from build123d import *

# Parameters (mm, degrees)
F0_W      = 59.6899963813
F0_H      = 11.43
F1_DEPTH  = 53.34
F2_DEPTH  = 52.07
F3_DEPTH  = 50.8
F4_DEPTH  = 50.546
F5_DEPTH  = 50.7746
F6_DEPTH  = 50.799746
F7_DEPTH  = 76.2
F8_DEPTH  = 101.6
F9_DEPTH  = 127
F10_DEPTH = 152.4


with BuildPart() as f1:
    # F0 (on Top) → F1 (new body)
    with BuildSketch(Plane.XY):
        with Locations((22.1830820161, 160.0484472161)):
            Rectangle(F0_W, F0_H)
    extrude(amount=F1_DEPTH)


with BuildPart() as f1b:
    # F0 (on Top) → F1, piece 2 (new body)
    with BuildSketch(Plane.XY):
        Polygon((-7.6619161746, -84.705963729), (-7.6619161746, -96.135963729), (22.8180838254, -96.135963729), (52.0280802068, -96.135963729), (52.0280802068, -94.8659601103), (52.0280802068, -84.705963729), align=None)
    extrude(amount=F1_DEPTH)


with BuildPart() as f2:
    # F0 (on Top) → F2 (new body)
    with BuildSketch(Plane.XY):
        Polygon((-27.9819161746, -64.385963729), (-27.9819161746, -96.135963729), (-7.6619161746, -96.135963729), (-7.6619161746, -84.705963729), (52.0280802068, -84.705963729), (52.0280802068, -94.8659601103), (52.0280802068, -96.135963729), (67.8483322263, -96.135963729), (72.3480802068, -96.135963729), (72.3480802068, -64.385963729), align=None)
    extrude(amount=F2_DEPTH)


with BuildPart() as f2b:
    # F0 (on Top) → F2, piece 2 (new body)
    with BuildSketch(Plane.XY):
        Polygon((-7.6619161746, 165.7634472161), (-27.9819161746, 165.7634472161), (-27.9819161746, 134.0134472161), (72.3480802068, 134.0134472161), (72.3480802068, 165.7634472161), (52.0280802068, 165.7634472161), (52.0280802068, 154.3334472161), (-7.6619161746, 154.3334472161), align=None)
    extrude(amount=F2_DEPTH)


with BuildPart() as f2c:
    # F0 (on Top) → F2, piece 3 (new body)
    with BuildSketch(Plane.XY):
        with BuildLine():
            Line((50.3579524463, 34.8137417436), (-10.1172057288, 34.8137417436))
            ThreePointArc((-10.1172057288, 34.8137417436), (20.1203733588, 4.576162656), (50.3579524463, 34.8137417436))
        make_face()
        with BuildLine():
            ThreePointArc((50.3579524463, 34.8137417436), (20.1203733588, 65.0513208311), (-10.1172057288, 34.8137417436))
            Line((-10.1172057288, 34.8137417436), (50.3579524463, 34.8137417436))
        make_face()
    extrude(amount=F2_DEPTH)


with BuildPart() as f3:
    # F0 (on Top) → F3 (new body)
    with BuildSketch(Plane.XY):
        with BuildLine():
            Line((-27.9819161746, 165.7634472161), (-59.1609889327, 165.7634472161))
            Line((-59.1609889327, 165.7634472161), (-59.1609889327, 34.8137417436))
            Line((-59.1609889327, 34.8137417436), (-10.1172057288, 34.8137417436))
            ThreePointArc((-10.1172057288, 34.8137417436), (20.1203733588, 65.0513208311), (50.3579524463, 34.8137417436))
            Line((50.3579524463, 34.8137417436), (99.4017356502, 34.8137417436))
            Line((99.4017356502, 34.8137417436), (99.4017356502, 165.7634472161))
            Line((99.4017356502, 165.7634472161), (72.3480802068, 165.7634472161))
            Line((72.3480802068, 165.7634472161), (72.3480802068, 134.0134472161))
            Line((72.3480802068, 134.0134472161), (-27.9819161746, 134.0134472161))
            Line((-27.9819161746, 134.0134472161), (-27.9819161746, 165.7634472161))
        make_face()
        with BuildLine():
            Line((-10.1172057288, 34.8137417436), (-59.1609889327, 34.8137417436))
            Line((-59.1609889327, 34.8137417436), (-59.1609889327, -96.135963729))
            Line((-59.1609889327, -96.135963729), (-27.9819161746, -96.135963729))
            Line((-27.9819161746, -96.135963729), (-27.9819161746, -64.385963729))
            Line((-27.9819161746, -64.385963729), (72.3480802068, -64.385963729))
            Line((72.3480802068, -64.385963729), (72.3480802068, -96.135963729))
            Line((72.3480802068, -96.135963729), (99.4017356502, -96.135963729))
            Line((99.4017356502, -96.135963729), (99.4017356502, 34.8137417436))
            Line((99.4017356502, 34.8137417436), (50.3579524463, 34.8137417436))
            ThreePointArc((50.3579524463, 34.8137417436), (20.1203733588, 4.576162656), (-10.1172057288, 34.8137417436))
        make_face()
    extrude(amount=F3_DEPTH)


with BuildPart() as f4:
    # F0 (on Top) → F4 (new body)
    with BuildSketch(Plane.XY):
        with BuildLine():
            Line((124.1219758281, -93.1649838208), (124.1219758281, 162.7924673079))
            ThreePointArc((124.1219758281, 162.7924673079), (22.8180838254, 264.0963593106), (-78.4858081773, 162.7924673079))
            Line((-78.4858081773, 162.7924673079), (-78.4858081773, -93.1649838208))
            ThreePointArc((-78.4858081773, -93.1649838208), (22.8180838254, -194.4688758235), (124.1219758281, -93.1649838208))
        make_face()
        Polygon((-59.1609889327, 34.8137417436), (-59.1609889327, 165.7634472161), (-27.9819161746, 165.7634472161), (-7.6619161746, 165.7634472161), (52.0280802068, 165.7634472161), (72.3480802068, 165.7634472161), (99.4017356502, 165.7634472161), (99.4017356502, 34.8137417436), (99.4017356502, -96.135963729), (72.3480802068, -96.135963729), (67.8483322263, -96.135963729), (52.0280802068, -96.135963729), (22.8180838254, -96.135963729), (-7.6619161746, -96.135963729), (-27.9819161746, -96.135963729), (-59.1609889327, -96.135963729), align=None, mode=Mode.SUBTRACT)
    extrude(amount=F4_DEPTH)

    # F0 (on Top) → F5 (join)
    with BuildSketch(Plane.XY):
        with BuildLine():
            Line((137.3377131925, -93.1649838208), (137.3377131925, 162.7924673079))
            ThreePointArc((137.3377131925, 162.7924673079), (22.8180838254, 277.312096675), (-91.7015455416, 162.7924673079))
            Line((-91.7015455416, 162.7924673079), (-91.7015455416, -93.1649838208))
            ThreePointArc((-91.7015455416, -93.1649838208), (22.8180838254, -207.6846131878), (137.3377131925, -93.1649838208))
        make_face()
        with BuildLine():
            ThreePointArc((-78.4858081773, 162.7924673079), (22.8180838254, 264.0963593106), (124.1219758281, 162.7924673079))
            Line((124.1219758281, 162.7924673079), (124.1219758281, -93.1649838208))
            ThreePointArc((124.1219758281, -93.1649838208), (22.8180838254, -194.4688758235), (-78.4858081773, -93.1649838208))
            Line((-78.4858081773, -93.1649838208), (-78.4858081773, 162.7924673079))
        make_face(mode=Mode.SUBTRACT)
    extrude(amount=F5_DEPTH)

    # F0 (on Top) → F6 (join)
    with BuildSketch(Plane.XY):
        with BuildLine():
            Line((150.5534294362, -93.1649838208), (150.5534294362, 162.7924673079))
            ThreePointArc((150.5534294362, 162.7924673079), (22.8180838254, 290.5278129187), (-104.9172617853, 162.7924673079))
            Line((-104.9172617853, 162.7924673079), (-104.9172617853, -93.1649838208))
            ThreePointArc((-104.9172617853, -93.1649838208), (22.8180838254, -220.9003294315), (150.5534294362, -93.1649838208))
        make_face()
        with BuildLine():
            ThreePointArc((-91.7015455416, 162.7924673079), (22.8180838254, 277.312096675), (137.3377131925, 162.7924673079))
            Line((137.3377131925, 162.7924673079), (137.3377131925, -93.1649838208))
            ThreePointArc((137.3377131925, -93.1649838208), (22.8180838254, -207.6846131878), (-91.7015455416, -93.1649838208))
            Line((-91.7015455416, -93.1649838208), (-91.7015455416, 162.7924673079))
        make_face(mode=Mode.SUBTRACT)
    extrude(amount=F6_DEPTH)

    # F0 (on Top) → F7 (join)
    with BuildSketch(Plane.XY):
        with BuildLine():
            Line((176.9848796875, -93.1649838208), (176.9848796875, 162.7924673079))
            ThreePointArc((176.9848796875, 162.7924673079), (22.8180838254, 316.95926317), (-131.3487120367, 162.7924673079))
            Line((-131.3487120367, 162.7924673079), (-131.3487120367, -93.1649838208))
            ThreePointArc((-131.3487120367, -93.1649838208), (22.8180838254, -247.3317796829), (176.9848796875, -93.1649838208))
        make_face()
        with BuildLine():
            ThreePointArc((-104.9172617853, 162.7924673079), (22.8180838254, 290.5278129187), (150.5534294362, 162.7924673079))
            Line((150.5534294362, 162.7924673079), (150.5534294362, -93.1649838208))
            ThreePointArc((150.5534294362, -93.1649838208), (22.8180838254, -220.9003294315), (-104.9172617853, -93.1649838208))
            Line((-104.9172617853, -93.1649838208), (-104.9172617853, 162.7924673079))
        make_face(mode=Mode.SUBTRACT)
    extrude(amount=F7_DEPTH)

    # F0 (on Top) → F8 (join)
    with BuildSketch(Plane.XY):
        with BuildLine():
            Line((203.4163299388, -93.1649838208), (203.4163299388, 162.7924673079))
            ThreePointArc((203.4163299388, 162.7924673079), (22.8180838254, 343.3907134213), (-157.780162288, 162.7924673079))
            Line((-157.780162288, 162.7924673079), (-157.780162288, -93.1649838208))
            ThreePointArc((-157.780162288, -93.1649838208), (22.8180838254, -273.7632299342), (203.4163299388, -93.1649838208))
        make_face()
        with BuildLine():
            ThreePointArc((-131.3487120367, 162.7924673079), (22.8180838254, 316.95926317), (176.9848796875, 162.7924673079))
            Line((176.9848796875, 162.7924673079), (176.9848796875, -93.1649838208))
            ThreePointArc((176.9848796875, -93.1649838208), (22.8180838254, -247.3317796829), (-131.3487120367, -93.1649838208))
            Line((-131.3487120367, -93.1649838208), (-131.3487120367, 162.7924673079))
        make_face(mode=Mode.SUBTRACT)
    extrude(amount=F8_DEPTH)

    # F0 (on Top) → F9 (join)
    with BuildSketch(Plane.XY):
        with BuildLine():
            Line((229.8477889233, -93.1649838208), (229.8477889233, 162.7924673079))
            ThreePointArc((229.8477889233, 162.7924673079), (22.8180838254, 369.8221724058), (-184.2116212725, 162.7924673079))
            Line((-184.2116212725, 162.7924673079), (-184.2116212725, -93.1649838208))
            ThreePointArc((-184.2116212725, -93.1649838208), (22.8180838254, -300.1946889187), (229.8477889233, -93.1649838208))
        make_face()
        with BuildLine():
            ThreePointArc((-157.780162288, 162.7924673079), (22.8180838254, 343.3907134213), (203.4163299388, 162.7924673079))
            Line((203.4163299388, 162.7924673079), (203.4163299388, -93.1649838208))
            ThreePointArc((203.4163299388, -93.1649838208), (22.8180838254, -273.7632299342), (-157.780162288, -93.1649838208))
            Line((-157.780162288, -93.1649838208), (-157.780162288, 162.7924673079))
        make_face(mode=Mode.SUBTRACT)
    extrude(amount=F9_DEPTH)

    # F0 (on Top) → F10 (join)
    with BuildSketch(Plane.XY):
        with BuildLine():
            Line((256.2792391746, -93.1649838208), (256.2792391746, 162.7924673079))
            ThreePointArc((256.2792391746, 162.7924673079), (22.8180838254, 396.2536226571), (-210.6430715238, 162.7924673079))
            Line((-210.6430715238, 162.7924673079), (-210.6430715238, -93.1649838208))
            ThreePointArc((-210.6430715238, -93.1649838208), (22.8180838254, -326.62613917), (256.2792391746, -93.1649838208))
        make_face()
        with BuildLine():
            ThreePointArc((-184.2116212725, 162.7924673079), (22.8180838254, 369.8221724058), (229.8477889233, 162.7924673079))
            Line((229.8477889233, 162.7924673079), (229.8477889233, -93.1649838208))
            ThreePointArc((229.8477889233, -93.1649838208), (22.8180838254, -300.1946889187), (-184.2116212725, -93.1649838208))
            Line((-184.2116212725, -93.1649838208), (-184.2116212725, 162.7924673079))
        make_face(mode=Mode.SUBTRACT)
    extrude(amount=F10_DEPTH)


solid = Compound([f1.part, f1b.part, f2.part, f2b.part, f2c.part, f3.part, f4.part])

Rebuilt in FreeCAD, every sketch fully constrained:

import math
import FreeCAD as App
import Part
import Sketcher
Q = App.Units.Quantity


def add_polygon(sketch, points):
    """Adds a closed chain of lines whose ends are joined by coincident constraints."""
    first, n = sketch.GeometryCount, len(points)
    for a, b in zip(points, points[1:] + points[:1]):
        sketch.addGeometry(Part.LineSegment(App.Vector(*a, 0), App.Vector(*b, 0)), False)
    for i in range(n):
        sketch.addConstraint(Sketcher.Constraint("Coincident", first + i, 2, first + (i + 1) % n, 1))

doc = App.newDocument("Part")
body = doc.addObject("PartDesign::Body", "Body")

# Sketch on XY plane
sketch1 = body.newObject("Sketcher::SketchObject", "Sketch")
sketch1.AttachmentSupport = (doc.getObject("XY_Plane"), [""])
sketch1.MapMode = "FlatFace"
add_polygon(sketch1, [(-8, 166), (-8, 154), (52, 154), (52, 166)])  # lines 0-3
sketch1.addConstraint([
    Sketcher.Constraint("Vertical", 0),
    Sketcher.Constraint("Horizontal", 1),
    Sketcher.Constraint("Vertical", 2),
    Sketcher.Constraint("Horizontal", 3),
    Sketcher.Constraint("DistanceX", 1, 1, 1, 2, Q("2.3499999 in")),
    Sketcher.Constraint("DistanceY", 0, 2, 0, 1, Q("0.45 in")),
    Sketcher.Constraint("DistanceX", -1, 1, 1, 2, Q("52.02808 mm")),
    Sketcher.Constraint("DistanceY", -1, 1, 0, 2, Q("154.333447 mm")),
])
pad1 = body.newObject("PartDesign::Pad", "Pad")
pad1.Profile = sketch1
pad1.Length = Q("2.1 in")
body2 = doc.addObject("PartDesign::Body", "Body001")

# Sketch on XY plane
sketch2 = body2.newObject("Sketcher::SketchObject", "Sketch001")
sketch2.AttachmentSupport = (doc.getObject("XY_Plane001"), [""])
sketch2.MapMode = "FlatFace"
add_polygon(sketch2, [(-8, -85), (-8, -96), (52, -96), (52, -85)])  # lines 0-3
sketch2.addConstraint([
    Sketcher.Constraint("Vertical", 0),
    Sketcher.Constraint("Horizontal", 1),
    Sketcher.Constraint("Vertical", 2),
    Sketcher.Constraint("Horizontal", 3),
    Sketcher.Constraint("DistanceX", 1, 1, 1, 2, Q("2.3499999 in")),
    Sketcher.Constraint("DistanceY", 0, 2, 0, 1, Q("0.45 in")),
    Sketcher.Constraint("DistanceX", -1, 1, 1, 2, Q("52.02808 mm")),
    Sketcher.Constraint("DistanceY", 0, 2, -1, 1, Q("96.135964 mm")),
])
pad2 = body2.newObject("PartDesign::Pad", "Pad001")
pad2.Profile = sketch2
pad2.Length = Q("2.1 in")
body3 = doc.addObject("PartDesign::Body", "Body002")

# Sketch on XY plane
sketch3 = body3.newObject("Sketcher::SketchObject", "Sketch002")
sketch3.AttachmentSupport = (doc.getObject("XY_Plane002"), [""])
sketch3.MapMode = "FlatFace"
add_polygon(sketch3, [(-28, -64), (-28, -96), (-8, -96), (-8, -85), (52, -85), (52, -96), (72, -96), (72, -64)])  # lines 0-7
sketch3.addConstraint([
    Sketcher.Constraint("Vertical", 0),
    Sketcher.Constraint("Horizontal", 1),
    Sketcher.Constraint("Vertical", 2),
    Sketcher.Constraint("Horizontal", 3),
    Sketcher.Constraint("Vertical", 4),
    Sketcher.Constraint("Horizontal", 5),
    Sketcher.Constraint("Vertical", 6),
    Sketcher.Constraint("Horizontal", 7),
    Sketcher.Constraint("Horizontal", 1, 2, 4, 2),
    Sketcher.Constraint("Equal", 1, 5),
    Sketcher.Constraint("DistanceX", 1, 1, 1, 2, Q("0.8 in")),
    Sketcher.Constraint("DistanceX", 3, 1, 3, 2, Q("2.3499999 in")),
    Sketcher.Constraint("DistanceY", 0, 2, 0, 1, Q("1.25 in")),
    Sketcher.Constraint("DistanceY", 2, 1, 2, 2, Q("0.45 in")),
    Sketcher.Constraint("DistanceX", -1, 1, 3, 2, Q("52.02808 mm")),
    Sketcher.Constraint("DistanceY", 0, 2, -1, 1, Q("96.135964 mm")),
])
pad3 = body3.newObject("PartDesign::Pad", "Pad002")
pad3.Profile = sketch3
pad3.Length = Q("2.05 in")
body4 = doc.addObject("PartDesign::Body", "Body003")

# Sketch on XY plane
sketch4 = body4.newObject("Sketcher::SketchObject", "Sketch003")
sketch4.AttachmentSupport = (doc.getObject("XY_Plane003"), [""])
sketch4.MapMode = "FlatFace"
add_polygon(sketch4, [(-8, 166), (-28, 166), (-28, 134), (72, 134), (72, 166), (52, 166), (52, 154), (-8, 154)])  # lines 0-7
sketch4.addConstraint([
    Sketcher.Constraint("Horizontal", 0),
    Sketcher.Constraint("Vertical", 1),
    Sketcher.Constraint("Horizontal", 2),
    Sketcher.Constraint("Vertical", 3),
    Sketcher.Constraint("Horizontal", 4),
    Sketcher.Constraint("Vertical", 5),
    Sketcher.Constraint("Horizontal", 6),
    Sketcher.Constraint("Vertical", 7),
    Sketcher.Constraint("Horizontal", 0, 2, 3, 2),
    Sketcher.Constraint("Equal", 0, 4),
    Sketcher.Constraint("DistanceX", 0, 2, 0, 1, Q("0.8 in")),
    Sketcher.Constraint("DistanceX", 2, 1, 2, 2, Q("3.9499999 in")),
    Sketcher.Constraint("DistanceY", 1, 2, 1, 1, Q("1.25 in")),
    Sketcher.Constraint("DistanceY", 5, 2, 5, 1, Q("0.45 in")),
    Sketcher.Constraint("DistanceX", -1, 1, 2, 2, Q("72.34808 mm")),
    Sketcher.Constraint("DistanceY", -1, 1, 0, 2, Q("165.763447 mm")),
])
pad4 = body4.newObject("PartDesign::Pad", "Pad003")
pad4.Profile = sketch4
pad4.Length = Q("2.05 in")
body5 = doc.addObject("PartDesign::Body", "Body004")

# Sketch on XY plane
sketch5 = body5.newObject("Sketcher::SketchObject", "Sketch004")
sketch5.AttachmentSupport = (doc.getObject("XY_Plane004"), [""])
sketch5.MapMode = "FlatFace"
sketch5.addGeometry(Part.Circle(App.Vector(20, 35, 0), App.Vector(0, 0, 1), 30), False)
sketch5.addConstraint([
    Sketcher.Constraint("Diameter", 0, Q("60.475158 mm")),
    Sketcher.Constraint("DistanceY", -1, 1, 0, 3, Q("34.813742 mm")),
    Sketcher.Constraint("DistanceX", -1, 1, 0, 3, Q("20.120373 mm")),
])
pad5 = body5.newObject("PartDesign::Pad", "Pad004")
pad5.Profile = sketch5
pad5.Length = Q("2.05 in")
body6 = doc.addObject("PartDesign::Body", "Body005")

# Sketch on XY plane
sketch6 = body6.newObject("Sketcher::SketchObject", "Sketch005")
sketch6.AttachmentSupport = (doc.getObject("XY_Plane005"), [""])
sketch6.MapMode = "FlatFace"
add_polygon(sketch6, [(-28, 166), (-59, 166), (-59, -96), (-28, -96), (-28, -64), (72, -64), (72, -96), (99, -96), (99, 166), (72, 166), (72, 134), (-28, 134)])  # lines 0-11
sketch6.addGeometry(Part.Circle(App.Vector(20, 35, 0), App.Vector(0, 0, 1), 30), False)  # 12
sketch6.addConstraint([
    Sketcher.Constraint("Horizontal", 0),
    Sketcher.Constraint("Vertical", 1),
    Sketcher.Constraint("Horizontal", 2),
    Sketcher.Constraint("Vertical", 3),
    Sketcher.Constraint("Horizontal", 4),
    Sketcher.Constraint("Vertical", 5),
    Sketcher.Constraint("Horizontal", 6),
    Sketcher.Constraint("Vertical", 7),
    Sketcher.Constraint("Horizontal", 8),
    Sketcher.Constraint("Vertical", 9),
    Sketcher.Constraint("Horizontal", 10),
    Sketcher.Constraint("Vertical", 11),
    Sketcher.Constraint("Horizontal", 2, 2, 5, 2),
    Sketcher.Constraint("Horizontal", 0, 2, 7, 2),
    Sketcher.Constraint("Vertical", 5, 2, 8, 2),
    Sketcher.Constraint("Vertical", 3, 2, 10, 2),
    Sketcher.Constraint("Equal", 5, 9),
    Sketcher.Constraint("DistanceX", 4, 1, 4, 2, Q("3.9499999 in")),
    Sketcher.Constraint("DistanceY", 3, 1, 3, 2, Q("1.25 in")),
    Sketcher.Constraint("Diameter", 12, Q("60.475158 mm")),
    Sketcher.Constraint("DistanceY", 1, 2, 1, 1, Q("261.899411 mm")),
    Sketcher.Constraint("DistanceX", 0, 2, 0, 1, Q("31.179073 mm")),
    Sketcher.Constraint("DistanceX", 6, 1, 6, 2, Q("27.053655 mm")),
    Sketcher.Constraint("DistanceY", -1, 1, 12, 3, Q("34.813742 mm")),
    Sketcher.Constraint("DistanceX", 0, 2, -1, 1, Q("59.160989 mm")),
    Sketcher.Constraint("DistanceX", 2, 2, 12, 3, Q("48.10229 mm")),
    Sketcher.Constraint("DistanceY", -1, 1, 0, 2, Q("165.763447 mm")),
])
pad6 = body6.newObject("PartDesign::Pad", "Pad005")
pad6.Profile = sketch6
pad6.Length = Q("2 in")
body7 = doc.addObject("PartDesign::Body", "Body006")

# Sketch on XY plane
sketch7 = body7.newObject("Sketcher::SketchObject", "Sketch006")
sketch7.AttachmentSupport = (doc.getObject("XY_Plane006"), [""])
sketch7.MapMode = "FlatFace"
sketch7.addGeometry(Part.LineSegment(App.Vector(124, -93, 0), App.Vector(124, 163, 0)), False)  # 0
sketch7.addGeometry(Part.ArcOfCircle(Part.Circle(App.Vector(23, 163, 0), App.Vector(0, 0, 1), 101), math.radians(0), math.radians(180)), False)  # 1
sketch7.addGeometry(Part.LineSegment(App.Vector(-78, 163, 0), App.Vector(-78, -93, 0)), False)  # 2
sketch7.addGeometry(Part.ArcOfCircle(Part.Circle(App.Vector(23, -93, 0), App.Vector(0, 0, 1), 101), math.radians(180), math.radians(360)), False)  # 3
add_polygon(sketch7, [(-59, -96), (-59, 166), (99, 166), (99, -96)])  # lines 4-7
sketch7.addConstraint([
    Sketcher.Constraint("Tangent", 0, 2, 1, 1),
    Sketcher.Constraint("Tangent", 1, 2, 2, 1),
    Sketcher.Constraint("Tangent", 2, 2, 3, 1),
    Sketcher.Constraint("Tangent", 3, 2, 0, 1),
    Sketcher.Constraint("Vertical", 0),
    Sketcher.Constraint("Vertical", 2),
    Sketcher.Constraint("Vertical", 4),
    Sketcher.Constraint("Horizontal", 5),
    Sketcher.Constraint("Vertical", 6),
    Sketcher.Constraint("Horizontal", 7),
    Sketcher.Constraint("Radius", 1, Q("101.303892 mm")),
    Sketcher.Constraint("DistanceY", 0, 1, 0, 2, Q("255.957451 mm")),
    Sketcher.Constraint("DistanceY", 4, 1, 4, 2, Q("261.899411 mm")),
    Sketcher.Constraint("DistanceX", 5, 1, 5, 2, Q("158.562725 mm")),
    Sketcher.Constraint("DistanceX", 1, 2, -1, 1, Q("78.485808 mm")),
    Sketcher.Constraint("DistanceX", 4, 2, -1, 1, Q("59.160989 mm")),
    Sketcher.Constraint("DistanceY", 1, 2, 4, 2, Q("2.97098 mm")),
    Sketcher.Constraint("DistanceY", -1, 1, 1, 3, Q("162.792467 mm")),
])
pad7 = body7.newObject("PartDesign::Pad", "Pad006")
pad7.Profile = sketch7
pad7.Length = Q("1.99 in")

# Sketch on XY plane
sketch8 = body7.newObject("Sketcher::SketchObject", "Sketch007")
sketch8.AttachmentSupport = (doc.getObject("XY_Plane006"), [""])
sketch8.MapMode = "FlatFace"
sketch8.addGeometry([
    Part.LineSegment(App.Vector(137, -93, 0), App.Vector(137, 163, 0)),  # 0
    Part.ArcOfCircle(Part.Circle(App.Vector(23, 163, 0), App.Vector(0, 0, 1), 115), math.radians(0), math.radians(180)),  # 1
    Part.LineSegment(App.Vector(-92, 163, 0), App.Vector(-92, -93, 0)),  # 2
    Part.ArcOfCircle(Part.Circle(App.Vector(23, -93, 0), App.Vector(0, 0, 1), 115), math.radians(180), math.radians(360)),  # 3
    Part.LineSegment(App.Vector(-78, -93, 0), App.Vector(-78, 163, 0)),  # 4
    Part.ArcOfCircle(Part.Circle(App.Vector(23, 163, 0), App.Vector(0, 0, 1), 101), math.radians(0), math.radians(180)),  # 5
    Part.LineSegment(App.Vector(124, 163, 0), App.Vector(124, -93, 0)),  # 6
    Part.ArcOfCircle(Part.Circle(App.Vector(23, -93, 0), App.Vector(0, 0, 1), 101), math.radians(180), math.radians(360)),  # 7
], False)
sketch8.addConstraint([
    Sketcher.Constraint("Tangent", 0, 2, 1, 1),
    Sketcher.Constraint("Tangent", 1, 2, 2, 1),
    Sketcher.Constraint("Tangent", 2, 2, 3, 1),
    Sketcher.Constraint("Tangent", 3, 2, 0, 1),
    Sketcher.Constraint("Tangent", 4, 2, 5, 2),
    Sketcher.Constraint("Tangent", 5, 1, 6, 1),
    Sketcher.Constraint("Tangent", 6, 2, 7, 2),
    Sketcher.Constraint("Tangent", 7, 1, 4, 1),
    Sketcher.Constraint("Vertical", 0),
    Sketcher.Constraint("Vertical", 2),
    Sketcher.Constraint("Vertical", 4),
    Sketcher.Constraint("Vertical", 6),
    Sketcher.Constraint("Coincident", 5, 3, 1, 3),
    Sketcher.Constraint("Horizontal", 7, 3, 2, 2),
    Sketcher.Constraint("Radius", 1, Q("114.519629 mm")),
    Sketcher.Constraint("Radius", 5, Q("101.303892 mm")),
    Sketcher.Constraint("DistanceY", 0, 1, 0, 2, Q("255.957451 mm")),
    Sketcher.Constraint("DistanceX", 4, 2, -1, 1, Q("78.485808 mm")),
    Sketcher.Constraint("DistanceY", -1, 1, 1, 3, Q("162.792467 mm")),
])
pad8 = body7.newObject("PartDesign::Pad", "Pad007")
pad8.Profile = sketch8
pad8.Length = Q("1.999 in")

# Sketch on XY plane
sketch9 = body7.newObject("Sketcher::SketchObject", "Sketch008")
sketch9.AttachmentSupport = (doc.getObject("XY_Plane006"), [""])
sketch9.MapMode = "FlatFace"
sketch9.addGeometry([
    Part.LineSegment(App.Vector(151, -93, 0), App.Vector(151, 163, 0)),  # 0
    Part.ArcOfCircle(Part.Circle(App.Vector(23, 163, 0), App.Vector(0, 0, 1), 128), math.radians(0), math.radians(180)),  # 1
    Part.LineSegment(App.Vector(-105, 163, 0), App.Vector(-105, -93, 0)),  # 2
    Part.ArcOfCircle(Part.Circle(App.Vector(23, -93, 0), App.Vector(0, 0, 1), 128), math.radians(180), math.radians(360)),  # 3
    Part.LineSegment(App.Vector(-92, -93, 0), App.Vector(-92, 163, 0)),  # 4
    Part.ArcOfCircle(Part.Circle(App.Vector(23, 163, 0), App.Vector(0, 0, 1), 115), math.radians(0), math.radians(180)),  # 5
    Part.LineSegment(App.Vector(137, 163, 0), App.Vector(137, -93, 0)),  # 6
    Part.ArcOfCircle(Part.Circle(App.Vector(23, -93, 0), App.Vector(0, 0, 1), 115), math.radians(180), math.radians(360)),  # 7
], False)
sketch9.addConstraint([
    Sketcher.Constraint("Tangent", 0, 2, 1, 1),
    Sketcher.Constraint("Tangent", 1, 2, 2, 1),
    Sketcher.Constraint("Tangent", 2, 2, 3, 1),
    Sketcher.Constraint("Tangent", 3, 2, 0, 1),
    Sketcher.Constraint("Tangent", 4, 2, 5, 2),
    Sketcher.Constraint("Tangent", 5, 1, 6, 1),
    Sketcher.Constraint("Tangent", 6, 2, 7, 2),
    Sketcher.Constraint("Tangent", 7, 1, 4, 1),
    Sketcher.Constraint("Vertical", 0),
    Sketcher.Constraint("Vertical", 2),
    Sketcher.Constraint("Vertical", 4),
    Sketcher.Constraint("Vertical", 6),
    Sketcher.Constraint("Coincident", 5, 3, 1, 3),
    Sketcher.Constraint("Horizontal", 7, 3, 2, 2),
    Sketcher.Constraint("Radius", 5, Q("114.519629 mm")),
    Sketcher.Constraint("Radius", 1, Q("127.735346 mm")),
    Sketcher.Constraint("DistanceY", 0, 1, 0, 2, Q("255.957451 mm")),
    Sketcher.Constraint("DistanceX", -1, 1, 0, 2, Q("150.553429 mm")),
    Sketcher.Constraint("DistanceY", -1, 1, 1, 3, Q("162.792467 mm")),
])
pad9 = body7.newObject("PartDesign::Pad", "Pad008")
pad9.Profile = sketch9
pad9.Length = 50.799746

# Sketch on XY plane
sketch10 = body7.newObject("Sketcher::SketchObject", "Sketch009")
sketch10.AttachmentSupport = (doc.getObject("XY_Plane006"), [""])
sketch10.MapMode = "FlatFace"
sketch10.addGeometry([
    Part.LineSegment(App.Vector(177, -93, 0), App.Vector(177, 163, 0)),  # 0
    Part.ArcOfCircle(Part.Circle(App.Vector(23, 163, 0), App.Vector(0, 0, 1), 154), math.radians(0), math.radians(180)),  # 1
    Part.LineSegment(App.Vector(-131, 163, 0), App.Vector(-131, -93, 0)),  # 2
    Part.ArcOfCircle(Part.Circle(App.Vector(23, -93, 0), App.Vector(0, 0, 1), 154), math.radians(180), math.radians(360)),  # 3
    Part.LineSegment(App.Vector(-105, -93, 0), App.Vector(-105, 163, 0)),  # 4
    Part.ArcOfCircle(Part.Circle(App.Vector(23, 163, 0), App.Vector(0, 0, 1), 128), math.radians(0), math.radians(180)),  # 5
    Part.LineSegment(App.Vector(151, 163, 0), App.Vector(151, -93, 0)),  # 6
    Part.ArcOfCircle(Part.Circle(App.Vector(23, -93, 0), App.Vector(0, 0, 1), 128), math.radians(180), math.radians(360)),  # 7
], False)
sketch10.addConstraint([
    Sketcher.Constraint("Tangent", 0, 2, 1, 1),
    Sketcher.Constraint("Tangent", 1, 2, 2, 1),
    Sketcher.Constraint("Tangent", 2, 2, 3, 1),
    Sketcher.Constraint("Tangent", 3, 2, 0, 1),
    Sketcher.Constraint("Tangent", 4, 2, 5, 2),
    Sketcher.Constraint("Tangent", 5, 1, 6, 1),
    Sketcher.Constraint("Tangent", 6, 2, 7, 2),
    Sketcher.Constraint("Tangent", 7, 1, 4, 1),
    Sketcher.Constraint("Vertical", 0),
    Sketcher.Constraint("Vertical", 2),
    Sketcher.Constraint("Vertical", 4),
    Sketcher.Constraint("Vertical", 6),
    Sketcher.Constraint("Coincident", 5, 3, 1, 3),
    Sketcher.Constraint("Horizontal", 7, 3, 2, 2),
    Sketcher.Constraint("Radius", 1, Q("154.166796 mm")),
    Sketcher.Constraint("Radius", 5, Q("127.735346 mm")),
    Sketcher.Constraint("DistanceY", 0, 1, 0, 2, Q("255.957451 mm")),
    Sketcher.Constraint("DistanceX", -1, 1, 0, 2, Q("176.98488 mm")),
    Sketcher.Constraint("DistanceY", -1, 1, 1, 3, Q("162.792467 mm")),
])
pad10 = body7.newObject("PartDesign::Pad", "Pad009")
pad10.Profile = sketch10
pad10.Length = Q("3 in")

# Sketch on XY plane
sketch11 = body7.newObject("Sketcher::SketchObject", "Sketch010")
sketch11.AttachmentSupport = (doc.getObject("XY_Plane006"), [""])
sketch11.MapMode = "FlatFace"
sketch11.addGeometry([
    Part.LineSegment(App.Vector(203, -93, 0), App.Vector(203, 163, 0)),  # 0
    Part.ArcOfCircle(Part.Circle(App.Vector(23, 163, 0), App.Vector(0, 0, 1), 181), math.radians(0), math.radians(180)),  # 1
    Part.LineSegment(App.Vector(-158, 163, 0), App.Vector(-158, -93, 0)),  # 2
    Part.ArcOfCircle(Part.Circle(App.Vector(23, -93, 0), App.Vector(0, 0, 1), 181), math.radians(180), math.radians(360)),  # 3
    Part.LineSegment(App.Vector(-131, -93, 0), App.Vector(-131, 163, 0)),  # 4
    Part.ArcOfCircle(Part.Circle(App.Vector(23, 163, 0), App.Vector(0, 0, 1), 154), math.radians(0), math.radians(180)),  # 5
    Part.LineSegment(App.Vector(177, 163, 0), App.Vector(177, -93, 0)),  # 6
    Part.ArcOfCircle(Part.Circle(App.Vector(23, -93, 0), App.Vector(0, 0, 1), 154), math.radians(180), math.radians(360)),  # 7
], False)
sketch11.addConstraint([
    Sketcher.Constraint("Tangent", 0, 2, 1, 1),
    Sketcher.Constraint("Tangent", 1, 2, 2, 1),
    Sketcher.Constraint("Tangent", 2, 2, 3, 1),
    Sketcher.Constraint("Tangent", 3, 2, 0, 1),
    Sketcher.Constraint("Tangent", 4, 2, 5, 2),
    Sketcher.Constraint("Tangent", 5, 1, 6, 1),
    Sketcher.Constraint("Tangent", 6, 2, 7, 2),
    Sketcher.Constraint("Tangent", 7, 1, 4, 1),
    Sketcher.Constraint("Vertical", 0),
    Sketcher.Constraint("Vertical", 2),
    Sketcher.Constraint("Vertical", 4),
    Sketcher.Constraint("Vertical", 6),
    Sketcher.Constraint("Coincident", 5, 3, 1, 3),
    Sketcher.Constraint("Horizontal", 7, 3, 2, 2),
    Sketcher.Constraint("Radius", 1, Q("180.598246 mm")),
    Sketcher.Constraint("Radius", 5, Q("154.166796 mm")),
    Sketcher.Constraint("DistanceY", 0, 1, 0, 2, Q("255.957451 mm")),
    Sketcher.Constraint("DistanceX", -1, 1, 0, 2, Q("203.41633 mm")),
    Sketcher.Constraint("DistanceY", -1, 1, 1, 3, Q("162.792467 mm")),
])
pad11 = body7.newObject("PartDesign::Pad", "Pad010")
pad11.Profile = sketch11
pad11.Length = Q("4 in")

# Sketch on XY plane
sketch12 = body7.newObject("Sketcher::SketchObject", "Sketch011")
sketch12.AttachmentSupport = (doc.getObject("XY_Plane006"), [""])
sketch12.MapMode = "FlatFace"
sketch12.addGeometry([
    Part.LineSegment(App.Vector(230, -93, 0), App.Vector(230, 163, 0)),  # 0
    Part.ArcOfCircle(Part.Circle(App.Vector(23, 163, 0), App.Vector(0, 0, 1), 207), math.radians(0), math.radians(180)),  # 1
    Part.LineSegment(App.Vector(-184, 163, 0), App.Vector(-184, -93, 0)),  # 2
    Part.ArcOfCircle(Part.Circle(App.Vector(23, -93, 0), App.Vector(0, 0, 1), 207), math.radians(180), math.radians(360)),  # 3
    Part.LineSegment(App.Vector(-158, -93, 0), App.Vector(-158, 163, 0)),  # 4
    Part.ArcOfCircle(Part.Circle(App.Vector(23, 163, 0), App.Vector(0, 0, 1), 181), math.radians(0), math.radians(180)),  # 5
    Part.LineSegment(App.Vector(203, 163, 0), App.Vector(203, -93, 0)),  # 6
    Part.ArcOfCircle(Part.Circle(App.Vector(23, -93, 0), App.Vector(0, 0, 1), 181), math.radians(180), math.radians(360)),  # 7
], False)
sketch12.addConstraint([
    Sketcher.Constraint("Tangent", 0, 2, 1, 1),
    Sketcher.Constraint("Tangent", 1, 2, 2, 1),
    Sketcher.Constraint("Tangent", 2, 2, 3, 1),
    Sketcher.Constraint("Tangent", 3, 2, 0, 1),
    Sketcher.Constraint("Tangent", 4, 2, 5, 2),
    Sketcher.Constraint("Tangent", 5, 1, 6, 1),
    Sketcher.Constraint("Tangent", 6, 2, 7, 2),
    Sketcher.Constraint("Tangent", 7, 1, 4, 1),
    Sketcher.Constraint("Vertical", 0),
    Sketcher.Constraint("Vertical", 2),
    Sketcher.Constraint("Vertical", 4),
    Sketcher.Constraint("Vertical", 6),
    Sketcher.Constraint("Coincident", 5, 3, 1, 3),
    Sketcher.Constraint("Horizontal", 7, 3, 2, 2),
    Sketcher.Constraint("Radius", 1, Q("207.029705 mm")),
    Sketcher.Constraint("Radius", 5, Q("180.598246 mm")),
    Sketcher.Constraint("DistanceY", 0, 1, 0, 2, Q("255.957451 mm")),
    Sketcher.Constraint("DistanceX", -1, 1, 0, 2, Q("229.847789 mm")),
    Sketcher.Constraint("DistanceY", -1, 1, 1, 3, Q("162.792467 mm")),
])
pad12 = body7.newObject("PartDesign::Pad", "Pad011")
pad12.Profile = sketch12
pad12.Length = Q("5 in")

# Sketch on XY plane
sketch13 = body7.newObject("Sketcher::SketchObject", "Sketch012")
sketch13.AttachmentSupport = (doc.getObject("XY_Plane006"), [""])
sketch13.MapMode = "FlatFace"
sketch13.addGeometry([
    Part.LineSegment(App.Vector(256, -93, 0), App.Vector(256, 163, 0)),  # 0
    Part.ArcOfCircle(Part.Circle(App.Vector(23, 163, 0), App.Vector(0, 0, 1), 233), math.radians(0), math.radians(180)),  # 1
    Part.LineSegment(App.Vector(-211, 163, 0), App.Vector(-211, -93, 0)),  # 2
    Part.ArcOfCircle(Part.Circle(App.Vector(23, -93, 0), App.Vector(0, 0, 1), 233), math.radians(180), math.radians(360)),  # 3
    Part.LineSegment(App.Vector(-184, -93, 0), App.Vector(-184, 163, 0)),  # 4
    Part.ArcOfCircle(Part.Circle(App.Vector(23, 163, 0), App.Vector(0, 0, 1), 207), math.radians(0), math.radians(180)),  # 5
    Part.LineSegment(App.Vector(230, 163, 0), App.Vector(230, -93, 0)),  # 6
    Part.ArcOfCircle(Part.Circle(App.Vector(23, -93, 0), App.Vector(0, 0, 1), 207), math.radians(180), math.radians(360)),  # 7
], False)
sketch13.addConstraint([
    Sketcher.Constraint("Tangent", 0, 2, 1, 1),
    Sketcher.Constraint("Tangent", 1, 2, 2, 1),
    Sketcher.Constraint("Tangent", 2, 2, 3, 1),
    Sketcher.Constraint("Tangent", 3, 2, 0, 1),
    Sketcher.Constraint("Tangent", 4, 2, 5, 2),
    Sketcher.Constraint("Tangent", 5, 1, 6, 1),
    Sketcher.Constraint("Tangent", 6, 2, 7, 2),
    Sketcher.Constraint("Tangent", 7, 1, 4, 1),
    Sketcher.Constraint("Vertical", 0),
    Sketcher.Constraint("Vertical", 2),
    Sketcher.Constraint("Vertical", 4),
    Sketcher.Constraint("Vertical", 6),
    Sketcher.Constraint("Coincident", 5, 3, 1, 3),
    Sketcher.Constraint("Horizontal", 7, 3, 2, 2),
    Sketcher.Constraint("Radius", 1, Q("233.461155 mm")),
    Sketcher.Constraint("Radius", 5, Q("207.029705 mm")),
    Sketcher.Constraint("DistanceY", 0, 1, 0, 2, Q("255.957451 mm")),
    Sketcher.Constraint("DistanceX", -1, 1, 0, 2, Q("256.279239 mm")),
    Sketcher.Constraint("DistanceY", -1, 1, 1, 3, Q("162.792467 mm")),
])
pad13 = body7.newObject("PartDesign::Pad", "Pad012")
pad13.Profile = sketch13
pad13.Length = Q("6 in")

doc.recompute()
